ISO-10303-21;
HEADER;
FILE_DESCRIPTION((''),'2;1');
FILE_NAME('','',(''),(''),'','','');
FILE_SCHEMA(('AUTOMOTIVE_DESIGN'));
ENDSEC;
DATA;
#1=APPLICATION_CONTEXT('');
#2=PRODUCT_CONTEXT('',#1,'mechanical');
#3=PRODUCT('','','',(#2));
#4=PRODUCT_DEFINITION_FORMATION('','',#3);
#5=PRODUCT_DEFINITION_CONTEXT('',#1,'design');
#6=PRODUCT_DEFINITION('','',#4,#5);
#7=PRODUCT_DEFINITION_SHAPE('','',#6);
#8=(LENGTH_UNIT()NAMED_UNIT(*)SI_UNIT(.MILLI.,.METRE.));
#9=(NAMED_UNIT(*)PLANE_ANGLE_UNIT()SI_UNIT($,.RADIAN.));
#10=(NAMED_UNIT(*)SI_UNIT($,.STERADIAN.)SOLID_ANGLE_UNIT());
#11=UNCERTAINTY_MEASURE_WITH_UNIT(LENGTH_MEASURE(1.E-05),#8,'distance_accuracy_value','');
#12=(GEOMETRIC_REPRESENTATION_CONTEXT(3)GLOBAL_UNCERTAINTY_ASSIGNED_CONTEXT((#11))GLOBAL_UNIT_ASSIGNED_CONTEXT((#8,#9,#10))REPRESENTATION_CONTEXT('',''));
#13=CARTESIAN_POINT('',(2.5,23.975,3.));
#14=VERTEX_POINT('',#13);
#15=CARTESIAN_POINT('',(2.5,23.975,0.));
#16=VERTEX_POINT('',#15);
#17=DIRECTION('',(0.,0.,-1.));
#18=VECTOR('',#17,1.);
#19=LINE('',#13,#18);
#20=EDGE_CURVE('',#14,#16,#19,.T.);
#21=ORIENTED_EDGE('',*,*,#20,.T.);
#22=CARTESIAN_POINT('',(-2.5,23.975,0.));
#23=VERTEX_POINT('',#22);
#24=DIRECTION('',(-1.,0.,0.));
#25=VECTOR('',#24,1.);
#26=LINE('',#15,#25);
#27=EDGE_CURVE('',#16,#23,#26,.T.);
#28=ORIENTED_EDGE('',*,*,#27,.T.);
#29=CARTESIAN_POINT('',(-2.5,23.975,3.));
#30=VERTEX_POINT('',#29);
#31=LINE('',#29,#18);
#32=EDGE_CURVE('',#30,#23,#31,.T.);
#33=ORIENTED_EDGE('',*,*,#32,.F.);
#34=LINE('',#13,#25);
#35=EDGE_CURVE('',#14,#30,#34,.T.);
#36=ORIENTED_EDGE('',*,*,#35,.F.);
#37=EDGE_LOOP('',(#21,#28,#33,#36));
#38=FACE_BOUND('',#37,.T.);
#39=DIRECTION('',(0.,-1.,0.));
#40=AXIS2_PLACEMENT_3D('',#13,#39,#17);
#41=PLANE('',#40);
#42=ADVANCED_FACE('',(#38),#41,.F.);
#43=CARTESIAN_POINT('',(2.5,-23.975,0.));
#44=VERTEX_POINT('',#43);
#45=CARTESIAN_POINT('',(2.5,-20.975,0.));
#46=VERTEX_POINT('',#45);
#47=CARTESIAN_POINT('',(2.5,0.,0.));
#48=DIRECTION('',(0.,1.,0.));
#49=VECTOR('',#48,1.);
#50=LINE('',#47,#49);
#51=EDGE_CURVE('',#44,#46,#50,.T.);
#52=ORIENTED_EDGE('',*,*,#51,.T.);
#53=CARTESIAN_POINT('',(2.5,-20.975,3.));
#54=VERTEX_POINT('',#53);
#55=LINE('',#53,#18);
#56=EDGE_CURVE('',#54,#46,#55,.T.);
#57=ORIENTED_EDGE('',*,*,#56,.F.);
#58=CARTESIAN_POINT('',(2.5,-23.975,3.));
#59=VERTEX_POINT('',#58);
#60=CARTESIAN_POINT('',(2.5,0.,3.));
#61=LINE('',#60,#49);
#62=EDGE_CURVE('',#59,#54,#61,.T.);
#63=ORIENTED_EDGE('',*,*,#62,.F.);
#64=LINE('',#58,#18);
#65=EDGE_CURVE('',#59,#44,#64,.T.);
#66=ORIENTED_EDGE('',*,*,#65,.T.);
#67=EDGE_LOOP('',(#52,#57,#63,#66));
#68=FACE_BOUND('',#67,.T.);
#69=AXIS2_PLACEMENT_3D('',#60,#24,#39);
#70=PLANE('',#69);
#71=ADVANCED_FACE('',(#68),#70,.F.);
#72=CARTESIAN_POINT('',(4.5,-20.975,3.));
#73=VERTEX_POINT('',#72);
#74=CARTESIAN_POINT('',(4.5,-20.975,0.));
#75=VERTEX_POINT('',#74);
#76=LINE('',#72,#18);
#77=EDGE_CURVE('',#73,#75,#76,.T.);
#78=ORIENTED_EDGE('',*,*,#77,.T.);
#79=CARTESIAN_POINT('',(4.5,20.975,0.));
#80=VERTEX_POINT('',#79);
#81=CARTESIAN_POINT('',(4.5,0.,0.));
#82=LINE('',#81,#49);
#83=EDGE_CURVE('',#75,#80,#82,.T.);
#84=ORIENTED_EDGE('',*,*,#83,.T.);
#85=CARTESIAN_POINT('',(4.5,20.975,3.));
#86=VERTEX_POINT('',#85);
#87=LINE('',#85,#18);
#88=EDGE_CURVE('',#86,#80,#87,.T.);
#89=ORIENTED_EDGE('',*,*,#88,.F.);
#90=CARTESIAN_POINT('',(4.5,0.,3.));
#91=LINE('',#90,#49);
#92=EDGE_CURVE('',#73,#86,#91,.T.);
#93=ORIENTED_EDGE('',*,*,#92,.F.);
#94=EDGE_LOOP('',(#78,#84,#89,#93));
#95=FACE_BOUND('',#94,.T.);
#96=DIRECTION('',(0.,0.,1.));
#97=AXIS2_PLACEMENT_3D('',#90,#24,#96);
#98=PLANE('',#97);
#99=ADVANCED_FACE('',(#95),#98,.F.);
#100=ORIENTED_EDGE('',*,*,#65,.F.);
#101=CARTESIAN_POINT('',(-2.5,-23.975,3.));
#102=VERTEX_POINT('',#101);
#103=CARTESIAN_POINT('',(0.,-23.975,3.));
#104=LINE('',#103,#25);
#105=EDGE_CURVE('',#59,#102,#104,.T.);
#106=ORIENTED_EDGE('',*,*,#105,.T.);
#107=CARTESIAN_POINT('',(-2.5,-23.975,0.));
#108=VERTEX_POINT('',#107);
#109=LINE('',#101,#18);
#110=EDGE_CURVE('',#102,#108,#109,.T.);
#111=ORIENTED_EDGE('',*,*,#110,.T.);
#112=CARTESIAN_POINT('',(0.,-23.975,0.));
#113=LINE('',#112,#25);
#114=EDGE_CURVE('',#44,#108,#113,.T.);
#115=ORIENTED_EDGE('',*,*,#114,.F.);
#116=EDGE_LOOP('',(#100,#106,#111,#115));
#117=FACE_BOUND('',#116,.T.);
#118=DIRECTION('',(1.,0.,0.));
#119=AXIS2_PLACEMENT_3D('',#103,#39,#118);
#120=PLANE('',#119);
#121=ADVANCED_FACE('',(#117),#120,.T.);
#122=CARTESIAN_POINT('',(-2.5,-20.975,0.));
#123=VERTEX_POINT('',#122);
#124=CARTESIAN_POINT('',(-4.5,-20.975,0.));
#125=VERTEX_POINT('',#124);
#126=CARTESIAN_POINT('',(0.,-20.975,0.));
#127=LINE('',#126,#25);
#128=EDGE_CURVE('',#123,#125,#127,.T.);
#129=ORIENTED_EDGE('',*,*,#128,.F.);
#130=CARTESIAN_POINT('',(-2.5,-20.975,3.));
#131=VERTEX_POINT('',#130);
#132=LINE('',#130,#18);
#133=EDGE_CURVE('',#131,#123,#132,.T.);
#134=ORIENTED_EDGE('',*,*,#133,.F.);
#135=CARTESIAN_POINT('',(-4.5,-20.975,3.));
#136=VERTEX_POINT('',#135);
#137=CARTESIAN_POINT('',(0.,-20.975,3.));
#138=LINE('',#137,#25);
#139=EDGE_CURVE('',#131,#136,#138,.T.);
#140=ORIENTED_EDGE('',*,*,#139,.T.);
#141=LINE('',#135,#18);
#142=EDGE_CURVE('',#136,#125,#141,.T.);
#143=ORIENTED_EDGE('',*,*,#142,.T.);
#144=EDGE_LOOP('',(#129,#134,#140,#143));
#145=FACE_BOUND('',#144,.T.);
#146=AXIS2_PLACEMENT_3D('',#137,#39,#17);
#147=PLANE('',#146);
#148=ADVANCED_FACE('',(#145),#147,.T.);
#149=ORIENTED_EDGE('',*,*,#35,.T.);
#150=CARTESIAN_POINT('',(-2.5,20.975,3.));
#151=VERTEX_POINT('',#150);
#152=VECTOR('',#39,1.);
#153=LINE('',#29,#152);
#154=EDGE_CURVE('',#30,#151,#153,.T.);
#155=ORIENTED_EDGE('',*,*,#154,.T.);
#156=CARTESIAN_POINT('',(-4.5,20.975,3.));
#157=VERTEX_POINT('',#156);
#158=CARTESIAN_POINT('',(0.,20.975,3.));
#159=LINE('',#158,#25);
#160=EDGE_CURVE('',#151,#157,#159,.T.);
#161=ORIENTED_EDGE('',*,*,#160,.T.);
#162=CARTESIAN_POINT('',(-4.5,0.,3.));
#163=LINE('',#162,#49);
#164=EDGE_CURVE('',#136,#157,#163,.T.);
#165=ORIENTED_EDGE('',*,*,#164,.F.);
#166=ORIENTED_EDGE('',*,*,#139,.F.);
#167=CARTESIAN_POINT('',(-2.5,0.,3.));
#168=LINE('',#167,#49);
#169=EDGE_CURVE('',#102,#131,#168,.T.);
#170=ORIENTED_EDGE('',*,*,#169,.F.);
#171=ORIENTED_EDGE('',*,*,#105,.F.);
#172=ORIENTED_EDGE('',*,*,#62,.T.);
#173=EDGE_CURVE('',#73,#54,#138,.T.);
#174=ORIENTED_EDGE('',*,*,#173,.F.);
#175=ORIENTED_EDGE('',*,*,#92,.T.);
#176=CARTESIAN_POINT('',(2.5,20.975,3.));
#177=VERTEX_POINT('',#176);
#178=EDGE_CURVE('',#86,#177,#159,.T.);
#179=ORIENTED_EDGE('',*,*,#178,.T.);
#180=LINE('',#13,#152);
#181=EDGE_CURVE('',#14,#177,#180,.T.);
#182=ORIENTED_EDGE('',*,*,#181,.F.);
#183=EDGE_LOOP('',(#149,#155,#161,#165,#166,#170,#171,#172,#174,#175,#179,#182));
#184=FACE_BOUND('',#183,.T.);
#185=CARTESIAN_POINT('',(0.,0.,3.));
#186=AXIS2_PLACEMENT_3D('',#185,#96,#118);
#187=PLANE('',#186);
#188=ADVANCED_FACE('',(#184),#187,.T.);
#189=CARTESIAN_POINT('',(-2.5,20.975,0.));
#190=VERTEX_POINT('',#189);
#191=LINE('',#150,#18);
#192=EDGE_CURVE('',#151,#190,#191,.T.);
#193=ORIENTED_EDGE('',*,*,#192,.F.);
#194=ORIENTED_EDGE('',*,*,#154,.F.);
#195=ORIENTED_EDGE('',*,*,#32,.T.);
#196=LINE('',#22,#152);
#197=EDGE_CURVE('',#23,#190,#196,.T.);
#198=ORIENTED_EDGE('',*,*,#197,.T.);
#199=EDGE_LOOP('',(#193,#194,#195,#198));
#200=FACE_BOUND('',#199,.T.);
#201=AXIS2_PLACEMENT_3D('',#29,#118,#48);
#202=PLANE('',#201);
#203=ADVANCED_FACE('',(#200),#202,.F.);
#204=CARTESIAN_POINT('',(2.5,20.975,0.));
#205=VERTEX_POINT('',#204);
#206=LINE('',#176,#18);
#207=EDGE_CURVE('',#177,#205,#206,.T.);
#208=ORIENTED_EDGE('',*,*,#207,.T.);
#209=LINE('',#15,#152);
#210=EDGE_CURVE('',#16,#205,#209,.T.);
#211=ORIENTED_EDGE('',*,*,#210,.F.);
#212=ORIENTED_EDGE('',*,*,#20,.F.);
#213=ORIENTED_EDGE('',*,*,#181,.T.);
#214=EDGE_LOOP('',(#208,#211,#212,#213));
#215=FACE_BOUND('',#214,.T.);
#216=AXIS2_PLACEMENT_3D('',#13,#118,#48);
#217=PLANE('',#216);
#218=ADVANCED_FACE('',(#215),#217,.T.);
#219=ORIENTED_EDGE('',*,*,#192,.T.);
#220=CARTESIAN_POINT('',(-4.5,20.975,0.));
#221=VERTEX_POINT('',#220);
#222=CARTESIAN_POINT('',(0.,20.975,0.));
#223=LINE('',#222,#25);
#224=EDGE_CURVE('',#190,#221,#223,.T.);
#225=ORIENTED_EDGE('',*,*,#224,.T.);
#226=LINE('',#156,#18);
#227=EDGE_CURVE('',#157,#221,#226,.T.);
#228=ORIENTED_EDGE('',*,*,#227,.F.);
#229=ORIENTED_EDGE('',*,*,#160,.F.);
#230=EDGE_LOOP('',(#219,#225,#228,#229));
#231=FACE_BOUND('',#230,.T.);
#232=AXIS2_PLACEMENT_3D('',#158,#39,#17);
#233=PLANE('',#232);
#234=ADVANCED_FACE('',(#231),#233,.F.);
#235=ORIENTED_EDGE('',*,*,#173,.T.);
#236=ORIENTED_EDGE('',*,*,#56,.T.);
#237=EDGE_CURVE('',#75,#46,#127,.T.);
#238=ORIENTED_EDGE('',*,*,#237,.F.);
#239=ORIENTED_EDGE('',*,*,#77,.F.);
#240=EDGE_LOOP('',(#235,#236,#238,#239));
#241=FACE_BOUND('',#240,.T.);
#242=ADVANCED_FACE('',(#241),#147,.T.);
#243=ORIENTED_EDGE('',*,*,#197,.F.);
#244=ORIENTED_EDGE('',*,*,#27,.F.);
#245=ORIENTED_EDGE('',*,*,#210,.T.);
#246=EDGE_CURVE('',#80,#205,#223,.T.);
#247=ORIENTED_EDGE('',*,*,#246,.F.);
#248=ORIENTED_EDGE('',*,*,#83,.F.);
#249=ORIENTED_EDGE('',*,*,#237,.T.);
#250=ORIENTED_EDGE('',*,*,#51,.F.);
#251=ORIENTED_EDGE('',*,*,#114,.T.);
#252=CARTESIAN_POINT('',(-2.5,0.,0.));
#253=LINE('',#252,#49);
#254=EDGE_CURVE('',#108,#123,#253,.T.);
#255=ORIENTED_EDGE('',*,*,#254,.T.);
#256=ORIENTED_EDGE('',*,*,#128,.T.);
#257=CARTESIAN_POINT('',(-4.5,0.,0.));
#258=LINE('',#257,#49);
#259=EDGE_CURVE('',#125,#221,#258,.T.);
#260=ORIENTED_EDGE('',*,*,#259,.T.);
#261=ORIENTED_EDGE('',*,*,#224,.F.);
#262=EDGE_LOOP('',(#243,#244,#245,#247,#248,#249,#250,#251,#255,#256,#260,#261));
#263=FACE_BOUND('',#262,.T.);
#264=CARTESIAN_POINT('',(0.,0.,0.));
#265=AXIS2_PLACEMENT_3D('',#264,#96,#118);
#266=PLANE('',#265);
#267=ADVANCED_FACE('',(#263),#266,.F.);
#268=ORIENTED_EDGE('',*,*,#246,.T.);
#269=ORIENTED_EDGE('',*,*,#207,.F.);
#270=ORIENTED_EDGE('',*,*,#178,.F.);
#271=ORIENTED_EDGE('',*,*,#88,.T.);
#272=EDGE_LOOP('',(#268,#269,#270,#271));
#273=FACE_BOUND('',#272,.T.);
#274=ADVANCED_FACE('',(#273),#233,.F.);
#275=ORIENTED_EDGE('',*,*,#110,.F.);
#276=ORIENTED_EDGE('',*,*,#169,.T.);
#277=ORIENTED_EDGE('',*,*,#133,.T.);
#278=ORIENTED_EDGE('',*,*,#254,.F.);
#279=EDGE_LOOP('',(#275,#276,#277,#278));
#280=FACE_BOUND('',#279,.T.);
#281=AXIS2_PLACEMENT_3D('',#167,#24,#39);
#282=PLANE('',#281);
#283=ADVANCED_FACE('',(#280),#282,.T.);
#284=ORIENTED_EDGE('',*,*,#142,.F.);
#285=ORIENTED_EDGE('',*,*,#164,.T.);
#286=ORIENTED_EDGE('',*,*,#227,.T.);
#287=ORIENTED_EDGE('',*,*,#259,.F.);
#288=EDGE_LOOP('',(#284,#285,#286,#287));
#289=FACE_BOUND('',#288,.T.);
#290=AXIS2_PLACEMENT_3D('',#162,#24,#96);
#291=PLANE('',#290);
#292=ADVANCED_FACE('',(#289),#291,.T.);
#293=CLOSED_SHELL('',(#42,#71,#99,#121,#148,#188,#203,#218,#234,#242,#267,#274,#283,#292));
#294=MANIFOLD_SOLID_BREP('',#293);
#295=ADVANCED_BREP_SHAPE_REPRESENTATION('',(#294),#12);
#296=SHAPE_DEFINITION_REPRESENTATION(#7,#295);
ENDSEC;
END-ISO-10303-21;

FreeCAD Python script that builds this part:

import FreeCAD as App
import Part
import Sketcher
from FreeCAD import Vector


def add_polygon(sketch, points):
    """Adds a closed chain of lines whose ends are joined by coincident constraints."""
    first, n = sketch.GeometryCount, len(points)
    for a, b in zip(points, points[1:] + points[:1]):
        sketch.addGeometry(Part.LineSegment(App.Vector(*a, 0), App.Vector(*b, 0)), False)
    for i in range(n):
        sketch.addConstraint(Sketcher.Constraint("Coincident", first + i, 2, first + (i + 1) % n, 1))

doc = App.newDocument("Part")
params = doc.addObject("Spreadsheet::Sheet", "Params")
for row, (alias, value) in enumerate([
    ("sketch1_width", "2 mm"),
    ("sketch1_width2", "5 mm"),
    ("sketch1_height", "3 mm"),
    ("sketch1_height2", "41.95 mm"),
    ("pad1_length", "3 mm"),
], start=1):
    params.set(f"A{row}", alias)
    params.set(f"B{row}", "=" + value)
    params.setAlias(f"B{row}", alias)

body = doc.addObject("PartDesign::Body", "Body")

sketch1 = body.newObject("Sketcher::SketchObject", "Sketch")
sketch1.AttachmentSupport = (doc.getObject("XY_Plane"), [""])
sketch1.MapMode = "FlatFace"
add_polygon(sketch1, [(-4.5, 21), (-4.5, -21), (-2.5, -21), (-2.5, -24), (2.5, -24), (2.5, -21), (4.5, -21), (4.5, 21), (2.5, 21), (2.5, 24), (-2.5, 24), (-2.5, 21)])
sketch1.addConstraint([
    Sketcher.Constraint("Vertical", 0),
    Sketcher.Constraint("Horizontal", 1),
    Sketcher.Constraint("Vertical", 2),
    Sketcher.Constraint("Horizontal", 3),
    Sketcher.Constraint("Vertical", 4),
    Sketcher.Constraint("Horizontal", 5),
    Sketcher.Constraint("Vertical", 6),
    Sketcher.Constraint("Horizontal", 7),
    Sketcher.Constraint("Vertical", 8),
    Sketcher.Constraint("Horizontal", 9),
    Sketcher.Constraint("Vertical", 10),
    Sketcher.Constraint("Horizontal", 11),
    Sketcher.Constraint("Symmetric", 0, 2, 6, 2, -1, 1),
    Sketcher.Constraint("Symmetric", 2, 2, 8, 2, -1, 1),
    Sketcher.Constraint("Symmetric", 4, 2, 10, 2, -1, 1),
    Sketcher.Constraint("Symmetric", 1, 2, 4, 2, -2),
    Sketcher.Constraint("DistanceX", 1, 1, 1, 2, 2.0),
    Sketcher.Constraint("DistanceX", 3, 1, 3, 2, 5.0),
    Sketcher.Constraint("DistanceY", 2, 2, 2, 1, 3.0),
    Sketcher.Constraint("DistanceY", 0, 2, 0, 1, 41.95),
])
sketch1.setExpression("Constraints[28]", "Params.sketch1_width")
sketch1.setExpression("Constraints[29]", "Params.sketch1_width2")
sketch1.setExpression("Constraints[30]", "Params.sketch1_height")
sketch1.setExpression("Constraints[31]", "Params.sketch1_height2")
pad1 = body.newObject("PartDesign::Pad", "Pad")
pad1.Profile = sketch1
pad1.setExpression("Length", "Params.pad1_length")

doc.recompute()
